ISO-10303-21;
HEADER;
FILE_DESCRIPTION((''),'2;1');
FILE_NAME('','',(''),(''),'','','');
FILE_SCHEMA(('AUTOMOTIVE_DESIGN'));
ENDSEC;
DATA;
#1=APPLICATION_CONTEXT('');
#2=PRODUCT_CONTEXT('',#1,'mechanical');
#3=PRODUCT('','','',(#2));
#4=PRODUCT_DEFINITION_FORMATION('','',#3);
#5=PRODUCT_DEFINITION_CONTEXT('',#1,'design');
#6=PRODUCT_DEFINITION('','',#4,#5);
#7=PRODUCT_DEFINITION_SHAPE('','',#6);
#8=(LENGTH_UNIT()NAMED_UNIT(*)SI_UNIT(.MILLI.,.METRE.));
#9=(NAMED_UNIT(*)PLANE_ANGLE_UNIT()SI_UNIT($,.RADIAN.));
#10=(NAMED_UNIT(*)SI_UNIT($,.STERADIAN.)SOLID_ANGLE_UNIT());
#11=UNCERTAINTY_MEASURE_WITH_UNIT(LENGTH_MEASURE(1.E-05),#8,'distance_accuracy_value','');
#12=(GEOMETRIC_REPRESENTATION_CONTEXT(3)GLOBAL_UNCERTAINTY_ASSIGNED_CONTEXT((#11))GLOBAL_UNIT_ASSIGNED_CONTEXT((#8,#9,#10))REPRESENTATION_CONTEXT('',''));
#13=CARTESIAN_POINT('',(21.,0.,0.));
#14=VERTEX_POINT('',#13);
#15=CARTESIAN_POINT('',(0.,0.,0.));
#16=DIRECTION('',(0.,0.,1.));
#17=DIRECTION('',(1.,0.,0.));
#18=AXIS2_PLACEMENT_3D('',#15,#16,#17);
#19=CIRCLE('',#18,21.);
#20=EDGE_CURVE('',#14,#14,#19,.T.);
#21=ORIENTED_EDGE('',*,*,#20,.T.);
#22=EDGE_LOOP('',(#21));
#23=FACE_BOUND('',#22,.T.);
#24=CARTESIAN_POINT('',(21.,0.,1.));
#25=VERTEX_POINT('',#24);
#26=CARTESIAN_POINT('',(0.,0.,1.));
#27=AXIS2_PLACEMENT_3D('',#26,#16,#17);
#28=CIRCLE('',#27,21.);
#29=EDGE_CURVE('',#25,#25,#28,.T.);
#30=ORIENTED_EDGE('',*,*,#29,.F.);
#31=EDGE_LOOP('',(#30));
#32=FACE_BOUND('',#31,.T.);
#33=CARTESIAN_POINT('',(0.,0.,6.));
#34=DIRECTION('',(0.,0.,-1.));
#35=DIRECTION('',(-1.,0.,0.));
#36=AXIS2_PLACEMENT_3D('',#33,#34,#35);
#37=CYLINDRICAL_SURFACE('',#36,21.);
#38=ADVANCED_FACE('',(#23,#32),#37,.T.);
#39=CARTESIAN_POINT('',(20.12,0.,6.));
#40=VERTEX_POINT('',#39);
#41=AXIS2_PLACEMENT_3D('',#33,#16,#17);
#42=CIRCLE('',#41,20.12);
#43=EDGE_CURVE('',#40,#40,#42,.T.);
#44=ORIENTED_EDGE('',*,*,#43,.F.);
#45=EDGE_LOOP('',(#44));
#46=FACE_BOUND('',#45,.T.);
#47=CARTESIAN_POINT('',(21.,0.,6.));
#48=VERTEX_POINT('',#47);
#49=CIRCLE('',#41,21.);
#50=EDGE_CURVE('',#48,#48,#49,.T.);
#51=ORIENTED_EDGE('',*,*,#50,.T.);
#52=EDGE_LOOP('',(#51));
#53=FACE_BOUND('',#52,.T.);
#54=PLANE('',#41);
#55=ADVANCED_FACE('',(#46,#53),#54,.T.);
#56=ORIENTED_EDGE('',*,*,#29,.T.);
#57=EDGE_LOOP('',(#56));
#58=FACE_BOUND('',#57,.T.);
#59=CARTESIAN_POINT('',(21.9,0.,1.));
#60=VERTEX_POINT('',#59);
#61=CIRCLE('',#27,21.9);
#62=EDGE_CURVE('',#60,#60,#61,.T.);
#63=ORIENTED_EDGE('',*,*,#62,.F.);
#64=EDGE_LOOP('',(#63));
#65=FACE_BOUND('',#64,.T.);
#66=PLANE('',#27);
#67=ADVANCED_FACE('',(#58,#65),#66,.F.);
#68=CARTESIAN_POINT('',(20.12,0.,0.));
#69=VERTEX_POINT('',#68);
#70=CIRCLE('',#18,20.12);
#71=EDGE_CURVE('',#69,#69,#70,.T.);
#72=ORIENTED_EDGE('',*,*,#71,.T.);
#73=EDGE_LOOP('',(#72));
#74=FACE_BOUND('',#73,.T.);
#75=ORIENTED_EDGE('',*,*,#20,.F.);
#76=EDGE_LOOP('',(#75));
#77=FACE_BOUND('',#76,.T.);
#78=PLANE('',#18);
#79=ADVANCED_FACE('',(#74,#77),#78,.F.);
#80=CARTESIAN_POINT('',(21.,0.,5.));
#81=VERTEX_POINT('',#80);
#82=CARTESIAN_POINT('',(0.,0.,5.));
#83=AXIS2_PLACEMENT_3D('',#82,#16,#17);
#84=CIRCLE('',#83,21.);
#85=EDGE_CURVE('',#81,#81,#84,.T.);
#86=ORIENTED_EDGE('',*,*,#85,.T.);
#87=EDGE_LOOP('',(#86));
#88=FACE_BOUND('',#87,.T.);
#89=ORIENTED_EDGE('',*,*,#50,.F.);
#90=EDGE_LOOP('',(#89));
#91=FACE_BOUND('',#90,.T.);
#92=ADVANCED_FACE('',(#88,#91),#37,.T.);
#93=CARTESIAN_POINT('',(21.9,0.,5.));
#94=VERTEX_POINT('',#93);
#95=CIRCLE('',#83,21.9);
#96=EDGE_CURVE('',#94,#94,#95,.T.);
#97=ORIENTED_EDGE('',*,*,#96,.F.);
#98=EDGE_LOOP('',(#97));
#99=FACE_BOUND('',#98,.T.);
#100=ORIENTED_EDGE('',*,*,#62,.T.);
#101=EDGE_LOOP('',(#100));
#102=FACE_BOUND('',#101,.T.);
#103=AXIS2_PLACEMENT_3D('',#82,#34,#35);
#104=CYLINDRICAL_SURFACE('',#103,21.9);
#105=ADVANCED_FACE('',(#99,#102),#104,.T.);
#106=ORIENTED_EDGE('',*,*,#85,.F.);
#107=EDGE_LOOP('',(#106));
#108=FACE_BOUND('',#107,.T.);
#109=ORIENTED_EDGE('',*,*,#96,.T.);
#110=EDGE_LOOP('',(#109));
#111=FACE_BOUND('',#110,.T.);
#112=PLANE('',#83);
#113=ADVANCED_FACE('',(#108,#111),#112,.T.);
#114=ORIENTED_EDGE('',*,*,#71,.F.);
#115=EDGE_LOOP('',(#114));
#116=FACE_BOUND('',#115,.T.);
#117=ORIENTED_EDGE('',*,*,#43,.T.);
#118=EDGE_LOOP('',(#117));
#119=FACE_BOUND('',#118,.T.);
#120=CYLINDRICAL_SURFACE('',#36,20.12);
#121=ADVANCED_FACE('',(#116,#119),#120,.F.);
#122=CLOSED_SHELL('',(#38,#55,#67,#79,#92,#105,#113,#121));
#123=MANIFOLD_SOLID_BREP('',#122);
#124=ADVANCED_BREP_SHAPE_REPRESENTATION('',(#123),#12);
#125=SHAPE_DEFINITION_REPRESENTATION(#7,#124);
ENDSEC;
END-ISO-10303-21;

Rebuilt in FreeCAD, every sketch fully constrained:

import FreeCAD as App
import Part
import Sketcher

doc = App.newDocument("Part")
body = doc.addObject("PartDesign::Body", "Body")

sketch1 = body.newObject("Sketcher::SketchObject", "Sketch")
sketch1.AttachmentSupport = (doc.getObject("XY_Plane"), [""])
sketch1.MapMode = "FlatFace"
sketch1.addGeometry([
    Part.Circle(App.Vector(0, 0, 0), App.Vector(0, 0, 1), 21),
    Part.Circle(App.Vector(0, 0, 0), App.Vector(0, 0, 1), 20),
], False)
sketch1.addConstraint([
    Sketcher.Constraint("Coincident", 0, 3, -1, 1),
    Sketcher.Constraint("Coincident", 1, 3, -1, 1),
    Sketcher.Constraint("Diameter", 0, 42.0),
    Sketcher.Constraint("Diameter", 1, 40.24),
])
pad1 = body.newObject("PartDesign::Pad", "Pad")
pad1.Profile = sketch1
pad1.Length = 6

sketch2 = body.newObject("Sketcher::SketchObject", "Sketch001")
sketch2.AttachmentSupport = (doc.getObject("XY_Plane"), [""])
sketch2.MapMode = "FlatFace"
sketch2.AttachmentOffset = App.Placement(App.Vector(0, 0, 1), App.Rotation())
sketch2.addGeometry([
    Part.Circle(App.Vector(0, 0, 0), App.Vector(0, 0, 1), 22),
    Part.Circle(App.Vector(0, 0, 0), App.Vector(0, 0, 1), 20),
], False)
sketch2.addConstraint([
    Sketcher.Constraint("Coincident", 0, 3, -1, 1),
    Sketcher.Constraint("Coincident", 1, 3, -1, 1),
    Sketcher.Constraint("Diameter", 0, 43.8),
    Sketcher.Constraint("Diameter", 1, 40.24),
])
pad2 = body.newObject("PartDesign::Pad", "Pad001")
pad2.Profile = sketch2
pad2.Length = 4

doc.recompute()
